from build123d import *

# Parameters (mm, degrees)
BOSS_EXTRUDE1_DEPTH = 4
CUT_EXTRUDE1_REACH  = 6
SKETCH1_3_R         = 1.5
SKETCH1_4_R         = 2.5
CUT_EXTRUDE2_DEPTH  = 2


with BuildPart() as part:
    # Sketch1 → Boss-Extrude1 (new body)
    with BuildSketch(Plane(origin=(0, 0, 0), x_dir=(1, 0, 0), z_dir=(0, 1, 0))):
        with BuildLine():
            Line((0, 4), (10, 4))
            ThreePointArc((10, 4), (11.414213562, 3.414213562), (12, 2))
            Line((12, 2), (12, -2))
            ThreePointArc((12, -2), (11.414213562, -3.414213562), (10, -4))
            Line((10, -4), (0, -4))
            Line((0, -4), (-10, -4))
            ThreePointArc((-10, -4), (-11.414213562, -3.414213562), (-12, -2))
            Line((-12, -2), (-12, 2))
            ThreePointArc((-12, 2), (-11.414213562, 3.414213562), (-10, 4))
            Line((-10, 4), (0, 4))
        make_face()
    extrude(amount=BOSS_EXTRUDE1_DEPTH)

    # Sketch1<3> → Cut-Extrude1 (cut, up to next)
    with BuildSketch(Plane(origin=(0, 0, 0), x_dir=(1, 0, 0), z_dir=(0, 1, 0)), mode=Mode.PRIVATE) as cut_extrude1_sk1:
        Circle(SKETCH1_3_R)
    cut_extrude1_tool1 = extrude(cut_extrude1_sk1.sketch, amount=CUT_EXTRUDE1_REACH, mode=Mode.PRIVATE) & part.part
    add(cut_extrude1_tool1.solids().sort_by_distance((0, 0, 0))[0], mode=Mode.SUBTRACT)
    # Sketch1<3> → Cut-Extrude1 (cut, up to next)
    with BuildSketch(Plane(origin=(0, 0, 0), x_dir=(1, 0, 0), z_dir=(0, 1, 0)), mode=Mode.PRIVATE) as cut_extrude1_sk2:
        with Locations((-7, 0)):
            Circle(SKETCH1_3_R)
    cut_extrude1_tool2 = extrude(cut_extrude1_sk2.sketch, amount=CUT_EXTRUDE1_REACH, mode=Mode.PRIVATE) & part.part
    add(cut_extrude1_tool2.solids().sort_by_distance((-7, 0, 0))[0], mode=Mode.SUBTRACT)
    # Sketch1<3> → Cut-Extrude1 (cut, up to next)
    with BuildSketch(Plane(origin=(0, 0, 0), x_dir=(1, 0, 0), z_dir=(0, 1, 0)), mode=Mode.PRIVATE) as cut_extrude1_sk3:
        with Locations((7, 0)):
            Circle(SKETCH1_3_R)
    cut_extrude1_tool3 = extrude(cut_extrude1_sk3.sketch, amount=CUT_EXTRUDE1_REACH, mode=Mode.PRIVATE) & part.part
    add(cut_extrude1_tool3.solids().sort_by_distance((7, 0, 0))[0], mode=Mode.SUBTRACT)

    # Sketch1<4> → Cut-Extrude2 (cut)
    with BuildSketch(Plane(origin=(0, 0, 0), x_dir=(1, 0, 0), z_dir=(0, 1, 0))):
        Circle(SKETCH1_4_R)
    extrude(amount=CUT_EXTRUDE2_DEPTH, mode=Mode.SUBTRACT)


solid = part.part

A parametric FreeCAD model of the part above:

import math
import FreeCAD as App
import Part
import Sketcher

doc = App.newDocument("Part")
body = doc.addObject("PartDesign::Body", "Body")

# Sketch on XZ plane
sketch1 = body.newObject("Sketcher::SketchObject", "Sketch")
sketch1.AttachmentSupport = (doc.getObject("XZ_Plane"), [""])
sketch1.MapMode = "FlatFace"
sketch1.addGeometry([
    Part.ArcOfCircle(Part.Circle(App.Vector(10, -2, 0), App.Vector(0, 0, 1), 2), math.radians(-90), math.radians(0)),  # 0
    Part.LineSegment(App.Vector(10, -4, 0), App.Vector(-10, -4, 0)),  # 1
    Part.ArcOfCircle(Part.Circle(App.Vector(-10, -2, 0), App.Vector(0, 0, 1), 2), math.radians(-180), math.radians(-90)),  # 2
    Part.LineSegment(App.Vector(-12, -2, 0), App.Vector(-12, 2, 0)),  # 3
    Part.ArcOfCircle(Part.Circle(App.Vector(-10, 2, 0), App.Vector(0, 0, 1), 2), math.radians(90), math.radians(180)),  # 4
    Part.LineSegment(App.Vector(-10, 4, 0), App.Vector(10, 4, 0)),  # 5
    Part.ArcOfCircle(Part.Circle(App.Vector(10, 2, 0), App.Vector(0, 0, 1), 2), math.radians(0), math.radians(90)),  # 6
    Part.LineSegment(App.Vector(12, 2, 0), App.Vector(12, -2, 0)),  # 7
], False)
sketch1.addConstraint([
    Sketcher.Constraint("Tangent", 0, 1, 1, 1),
    Sketcher.Constraint("Tangent", 1, 2, 2, 2),
    Sketcher.Constraint("Tangent", 2, 1, 3, 1),
    Sketcher.Constraint("Tangent", 3, 2, 4, 2),
    Sketcher.Constraint("Tangent", 4, 1, 5, 1),
    Sketcher.Constraint("Tangent", 5, 2, 6, 2),
    Sketcher.Constraint("Tangent", 6, 1, 7, 1),
    Sketcher.Constraint("Tangent", 7, 2, 0, 2),
    Sketcher.Constraint("Horizontal", 1),
    Sketcher.Constraint("Vertical", 3),
    Sketcher.Constraint("Horizontal", 5),
    Sketcher.Constraint("Vertical", 7),
    Sketcher.Constraint("Equal", 0, 2),
    Sketcher.Constraint("Equal", 2, 4),
    Sketcher.Constraint("Equal", 4, 6),
    Sketcher.Constraint("Symmetric", 0, 3, 4, 3, -1, 1),
    Sketcher.Constraint("Radius", 0, 2.0),
    Sketcher.Constraint("DistanceX", 1, 2, 1, 1, 20.0),
    Sketcher.Constraint("DistanceY", 3, 1, 3, 2, 4.0),
])
pad1 = body.newObject("PartDesign::Pad", "Pad")
pad1.Profile = sketch1
pad1.Length = 4
pad1.Reversed = True

# Sketch on XZ plane
sketch2 = body.newObject("Sketcher::SketchObject", "Sketch001")
sketch2.AttachmentSupport = (doc.getObject("XZ_Plane"), [""])
sketch2.MapMode = "FlatFace"
sketch2.addGeometry(Part.Circle(App.Vector(0, 0, 0), App.Vector(0, 0, 1), 1.5), False)
sketch2.addConstraint([
    Sketcher.Constraint("Coincident", 0, 3, -1, 1),
    Sketcher.Constraint("Diameter", 0, 3.0),
])
pocket1 = body.newObject("PartDesign::Pocket", "Pocket")
pocket1.Profile = sketch2
pocket1.Type = "UpToFirst"

# Sketch on XZ plane
sketch3 = body.newObject("Sketcher::SketchObject", "Sketch002")
sketch3.AttachmentSupport = (doc.getObject("XZ_Plane"), [""])
sketch3.MapMode = "FlatFace"
sketch3.addGeometry(Part.Circle(App.Vector(-7, 0, 0), App.Vector(0, 0, 1), 1.5), False)
sketch3.addConstraint([
    Sketcher.Constraint("PointOnObject", 0, 3, -1),
    Sketcher.Constraint("Diameter", 0, 3.0),
    Sketcher.Constraint("DistanceX", 0, 3, -1, 1, 7.0),
])
pocket2 = body.newObject("PartDesign::Pocket", "Pocket001")
pocket2.Profile = sketch3
pocket2.Type = "UpToFirst"

# Sketch on XZ plane
sketch4 = body.newObject("Sketcher::SketchObject", "Sketch003")
sketch4.AttachmentSupport = (doc.getObject("XZ_Plane"), [""])
sketch4.MapMode = "FlatFace"
sketch4.addGeometry(Part.Circle(App.Vector(7, 0, 0), App.Vector(0, 0, 1), 1.5), False)
sketch4.addConstraint([
    Sketcher.Constraint("PointOnObject", 0, 3, -1),
    Sketcher.Constraint("Diameter", 0, 3.0),
    Sketcher.Constraint("DistanceX", -1, 1, 0, 3, 7.0),
])
pocket3 = body.newObject("PartDesign::Pocket", "Pocket002")
pocket3.Profile = sketch4
pocket3.Type = "UpToFirst"

# Sketch on XZ plane
sketch5 = body.newObject("Sketcher::SketchObject", "Sketch004")
sketch5.AttachmentSupport = (doc.getObject("XZ_Plane"), [""])
sketch5.MapMode = "FlatFace"
sketch5.addGeometry(Part.Circle(App.Vector(0, 0, 0), App.Vector(0, 0, 1), 2.5), False)
sketch5.addConstraint([
    Sketcher.Constraint("Coincident", 0, 3, -1, 1),
    Sketcher.Constraint("Diameter", 0, 5.0),
])
pocket4 = body.newObject("PartDesign::Pocket", "Pocket003")
pocket4.Profile = sketch5
pocket4.Length = 2

doc.recompute()
